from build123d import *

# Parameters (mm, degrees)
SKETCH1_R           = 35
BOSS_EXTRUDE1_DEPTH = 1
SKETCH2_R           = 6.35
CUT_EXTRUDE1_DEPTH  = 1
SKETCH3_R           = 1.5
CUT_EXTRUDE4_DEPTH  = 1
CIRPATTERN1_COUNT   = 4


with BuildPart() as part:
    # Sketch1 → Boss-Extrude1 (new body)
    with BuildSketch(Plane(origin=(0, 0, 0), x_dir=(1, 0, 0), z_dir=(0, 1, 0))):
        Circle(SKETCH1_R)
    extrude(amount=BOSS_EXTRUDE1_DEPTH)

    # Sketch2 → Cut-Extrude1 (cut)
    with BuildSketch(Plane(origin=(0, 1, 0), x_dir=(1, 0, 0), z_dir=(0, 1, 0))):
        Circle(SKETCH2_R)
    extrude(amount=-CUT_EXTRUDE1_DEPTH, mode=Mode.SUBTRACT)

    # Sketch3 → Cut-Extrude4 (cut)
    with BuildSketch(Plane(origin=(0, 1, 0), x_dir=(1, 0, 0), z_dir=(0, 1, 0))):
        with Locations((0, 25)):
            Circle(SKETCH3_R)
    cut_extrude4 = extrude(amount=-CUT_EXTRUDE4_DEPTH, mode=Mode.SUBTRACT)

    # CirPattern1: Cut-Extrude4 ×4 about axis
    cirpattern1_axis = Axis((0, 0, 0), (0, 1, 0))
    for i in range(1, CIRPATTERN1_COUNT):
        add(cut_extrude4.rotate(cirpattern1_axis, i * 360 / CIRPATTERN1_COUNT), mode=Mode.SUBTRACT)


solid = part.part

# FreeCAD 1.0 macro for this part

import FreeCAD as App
import Part
import Sketcher

V = App.Vector
Q = App.Units.Quantity

doc = App.newDocument("Part")
body = doc.addObject("PartDesign::Body", "Body")

sketch1 = doc.addObject("Sketcher::SketchObject", "Sketch")
body.addObject(sketch1)
sketch1.AttachmentSupport = (doc.XZ_Plane, [""])
sketch1.MapMode = "FlatFace"
sketch1.addGeometry(Part.Circle(V(0, 0, 0), V(0, 0, 1), 35), False)
sketch1.addConstraint([
    Sketcher.Constraint("Coincident", 0, 3, -1, 1),
    Sketcher.Constraint("Diameter", 0, Q("70 mm")),
])
pad1 = doc.addObject("PartDesign::Pad", "Pad")
body.addObject(pad1)
pad1.Profile = sketch1
pad1.Length = 1
pad1.Reversed = True

sketch2 = doc.addObject("Sketcher::SketchObject", "Sketch001")
body.addObject(sketch2)
sketch2.AttachmentSupport = (doc.XZ_Plane, [""])
sketch2.MapMode = "FlatFace"
sketch2.AttachmentOffset = App.Placement(V(0, 0, -1), App.Rotation())
sketch2.addGeometry(Part.Circle(V(0, 0, 0), V(0, 0, 1), 6.35), False)
sketch2.addConstraint([
    Sketcher.Constraint("Coincident", 0, 3, -1, 1),
    Sketcher.Constraint("Diameter", 0, Q("12.7 mm")),
])
pocket1 = doc.addObject("PartDesign::Pocket", "Pocket")
body.addObject(pocket1)
pocket1.Profile = sketch2
pocket1.Length = 1
pocket1.Reversed = True

sketch3 = doc.addObject("Sketcher::SketchObject", "Sketch002")
body.addObject(sketch3)
sketch3.AttachmentSupport = (doc.XZ_Plane, [""])
sketch3.MapMode = "FlatFace"
sketch3.AttachmentOffset = App.Placement(V(0, 0, -1), App.Rotation())
sketch3.addGeometry(Part.Circle(V(0, -25, 0), V(0, 0, 1), 1.5), False)
sketch3.addConstraint([
    Sketcher.Constraint("PointOnObject", 0, 3, -2),
    Sketcher.Constraint("Diameter", 0, Q("3 mm")),
    Sketcher.Constraint("DistanceY", 0, 3, -1, 1, Q("25 mm")),
])
pocket2 = doc.addObject("PartDesign::Pocket", "Pocket001")
body.addObject(pocket2)
pocket2.Profile = sketch3
pocket2.Length = 1
pocket2.Reversed = True
doc.recompute()

polarpattern = doc.addObject("PartDesign::PolarPattern", "PolarPattern")
body.addObject(polarpattern)
polarpattern.Originals = [pocket2]
polarpattern.Axis = (doc.Y_Axis, [""])
polarpattern.Angle = 360
polarpattern.Occurrences = 4
body.Tip = polarpattern

doc.recompute()
